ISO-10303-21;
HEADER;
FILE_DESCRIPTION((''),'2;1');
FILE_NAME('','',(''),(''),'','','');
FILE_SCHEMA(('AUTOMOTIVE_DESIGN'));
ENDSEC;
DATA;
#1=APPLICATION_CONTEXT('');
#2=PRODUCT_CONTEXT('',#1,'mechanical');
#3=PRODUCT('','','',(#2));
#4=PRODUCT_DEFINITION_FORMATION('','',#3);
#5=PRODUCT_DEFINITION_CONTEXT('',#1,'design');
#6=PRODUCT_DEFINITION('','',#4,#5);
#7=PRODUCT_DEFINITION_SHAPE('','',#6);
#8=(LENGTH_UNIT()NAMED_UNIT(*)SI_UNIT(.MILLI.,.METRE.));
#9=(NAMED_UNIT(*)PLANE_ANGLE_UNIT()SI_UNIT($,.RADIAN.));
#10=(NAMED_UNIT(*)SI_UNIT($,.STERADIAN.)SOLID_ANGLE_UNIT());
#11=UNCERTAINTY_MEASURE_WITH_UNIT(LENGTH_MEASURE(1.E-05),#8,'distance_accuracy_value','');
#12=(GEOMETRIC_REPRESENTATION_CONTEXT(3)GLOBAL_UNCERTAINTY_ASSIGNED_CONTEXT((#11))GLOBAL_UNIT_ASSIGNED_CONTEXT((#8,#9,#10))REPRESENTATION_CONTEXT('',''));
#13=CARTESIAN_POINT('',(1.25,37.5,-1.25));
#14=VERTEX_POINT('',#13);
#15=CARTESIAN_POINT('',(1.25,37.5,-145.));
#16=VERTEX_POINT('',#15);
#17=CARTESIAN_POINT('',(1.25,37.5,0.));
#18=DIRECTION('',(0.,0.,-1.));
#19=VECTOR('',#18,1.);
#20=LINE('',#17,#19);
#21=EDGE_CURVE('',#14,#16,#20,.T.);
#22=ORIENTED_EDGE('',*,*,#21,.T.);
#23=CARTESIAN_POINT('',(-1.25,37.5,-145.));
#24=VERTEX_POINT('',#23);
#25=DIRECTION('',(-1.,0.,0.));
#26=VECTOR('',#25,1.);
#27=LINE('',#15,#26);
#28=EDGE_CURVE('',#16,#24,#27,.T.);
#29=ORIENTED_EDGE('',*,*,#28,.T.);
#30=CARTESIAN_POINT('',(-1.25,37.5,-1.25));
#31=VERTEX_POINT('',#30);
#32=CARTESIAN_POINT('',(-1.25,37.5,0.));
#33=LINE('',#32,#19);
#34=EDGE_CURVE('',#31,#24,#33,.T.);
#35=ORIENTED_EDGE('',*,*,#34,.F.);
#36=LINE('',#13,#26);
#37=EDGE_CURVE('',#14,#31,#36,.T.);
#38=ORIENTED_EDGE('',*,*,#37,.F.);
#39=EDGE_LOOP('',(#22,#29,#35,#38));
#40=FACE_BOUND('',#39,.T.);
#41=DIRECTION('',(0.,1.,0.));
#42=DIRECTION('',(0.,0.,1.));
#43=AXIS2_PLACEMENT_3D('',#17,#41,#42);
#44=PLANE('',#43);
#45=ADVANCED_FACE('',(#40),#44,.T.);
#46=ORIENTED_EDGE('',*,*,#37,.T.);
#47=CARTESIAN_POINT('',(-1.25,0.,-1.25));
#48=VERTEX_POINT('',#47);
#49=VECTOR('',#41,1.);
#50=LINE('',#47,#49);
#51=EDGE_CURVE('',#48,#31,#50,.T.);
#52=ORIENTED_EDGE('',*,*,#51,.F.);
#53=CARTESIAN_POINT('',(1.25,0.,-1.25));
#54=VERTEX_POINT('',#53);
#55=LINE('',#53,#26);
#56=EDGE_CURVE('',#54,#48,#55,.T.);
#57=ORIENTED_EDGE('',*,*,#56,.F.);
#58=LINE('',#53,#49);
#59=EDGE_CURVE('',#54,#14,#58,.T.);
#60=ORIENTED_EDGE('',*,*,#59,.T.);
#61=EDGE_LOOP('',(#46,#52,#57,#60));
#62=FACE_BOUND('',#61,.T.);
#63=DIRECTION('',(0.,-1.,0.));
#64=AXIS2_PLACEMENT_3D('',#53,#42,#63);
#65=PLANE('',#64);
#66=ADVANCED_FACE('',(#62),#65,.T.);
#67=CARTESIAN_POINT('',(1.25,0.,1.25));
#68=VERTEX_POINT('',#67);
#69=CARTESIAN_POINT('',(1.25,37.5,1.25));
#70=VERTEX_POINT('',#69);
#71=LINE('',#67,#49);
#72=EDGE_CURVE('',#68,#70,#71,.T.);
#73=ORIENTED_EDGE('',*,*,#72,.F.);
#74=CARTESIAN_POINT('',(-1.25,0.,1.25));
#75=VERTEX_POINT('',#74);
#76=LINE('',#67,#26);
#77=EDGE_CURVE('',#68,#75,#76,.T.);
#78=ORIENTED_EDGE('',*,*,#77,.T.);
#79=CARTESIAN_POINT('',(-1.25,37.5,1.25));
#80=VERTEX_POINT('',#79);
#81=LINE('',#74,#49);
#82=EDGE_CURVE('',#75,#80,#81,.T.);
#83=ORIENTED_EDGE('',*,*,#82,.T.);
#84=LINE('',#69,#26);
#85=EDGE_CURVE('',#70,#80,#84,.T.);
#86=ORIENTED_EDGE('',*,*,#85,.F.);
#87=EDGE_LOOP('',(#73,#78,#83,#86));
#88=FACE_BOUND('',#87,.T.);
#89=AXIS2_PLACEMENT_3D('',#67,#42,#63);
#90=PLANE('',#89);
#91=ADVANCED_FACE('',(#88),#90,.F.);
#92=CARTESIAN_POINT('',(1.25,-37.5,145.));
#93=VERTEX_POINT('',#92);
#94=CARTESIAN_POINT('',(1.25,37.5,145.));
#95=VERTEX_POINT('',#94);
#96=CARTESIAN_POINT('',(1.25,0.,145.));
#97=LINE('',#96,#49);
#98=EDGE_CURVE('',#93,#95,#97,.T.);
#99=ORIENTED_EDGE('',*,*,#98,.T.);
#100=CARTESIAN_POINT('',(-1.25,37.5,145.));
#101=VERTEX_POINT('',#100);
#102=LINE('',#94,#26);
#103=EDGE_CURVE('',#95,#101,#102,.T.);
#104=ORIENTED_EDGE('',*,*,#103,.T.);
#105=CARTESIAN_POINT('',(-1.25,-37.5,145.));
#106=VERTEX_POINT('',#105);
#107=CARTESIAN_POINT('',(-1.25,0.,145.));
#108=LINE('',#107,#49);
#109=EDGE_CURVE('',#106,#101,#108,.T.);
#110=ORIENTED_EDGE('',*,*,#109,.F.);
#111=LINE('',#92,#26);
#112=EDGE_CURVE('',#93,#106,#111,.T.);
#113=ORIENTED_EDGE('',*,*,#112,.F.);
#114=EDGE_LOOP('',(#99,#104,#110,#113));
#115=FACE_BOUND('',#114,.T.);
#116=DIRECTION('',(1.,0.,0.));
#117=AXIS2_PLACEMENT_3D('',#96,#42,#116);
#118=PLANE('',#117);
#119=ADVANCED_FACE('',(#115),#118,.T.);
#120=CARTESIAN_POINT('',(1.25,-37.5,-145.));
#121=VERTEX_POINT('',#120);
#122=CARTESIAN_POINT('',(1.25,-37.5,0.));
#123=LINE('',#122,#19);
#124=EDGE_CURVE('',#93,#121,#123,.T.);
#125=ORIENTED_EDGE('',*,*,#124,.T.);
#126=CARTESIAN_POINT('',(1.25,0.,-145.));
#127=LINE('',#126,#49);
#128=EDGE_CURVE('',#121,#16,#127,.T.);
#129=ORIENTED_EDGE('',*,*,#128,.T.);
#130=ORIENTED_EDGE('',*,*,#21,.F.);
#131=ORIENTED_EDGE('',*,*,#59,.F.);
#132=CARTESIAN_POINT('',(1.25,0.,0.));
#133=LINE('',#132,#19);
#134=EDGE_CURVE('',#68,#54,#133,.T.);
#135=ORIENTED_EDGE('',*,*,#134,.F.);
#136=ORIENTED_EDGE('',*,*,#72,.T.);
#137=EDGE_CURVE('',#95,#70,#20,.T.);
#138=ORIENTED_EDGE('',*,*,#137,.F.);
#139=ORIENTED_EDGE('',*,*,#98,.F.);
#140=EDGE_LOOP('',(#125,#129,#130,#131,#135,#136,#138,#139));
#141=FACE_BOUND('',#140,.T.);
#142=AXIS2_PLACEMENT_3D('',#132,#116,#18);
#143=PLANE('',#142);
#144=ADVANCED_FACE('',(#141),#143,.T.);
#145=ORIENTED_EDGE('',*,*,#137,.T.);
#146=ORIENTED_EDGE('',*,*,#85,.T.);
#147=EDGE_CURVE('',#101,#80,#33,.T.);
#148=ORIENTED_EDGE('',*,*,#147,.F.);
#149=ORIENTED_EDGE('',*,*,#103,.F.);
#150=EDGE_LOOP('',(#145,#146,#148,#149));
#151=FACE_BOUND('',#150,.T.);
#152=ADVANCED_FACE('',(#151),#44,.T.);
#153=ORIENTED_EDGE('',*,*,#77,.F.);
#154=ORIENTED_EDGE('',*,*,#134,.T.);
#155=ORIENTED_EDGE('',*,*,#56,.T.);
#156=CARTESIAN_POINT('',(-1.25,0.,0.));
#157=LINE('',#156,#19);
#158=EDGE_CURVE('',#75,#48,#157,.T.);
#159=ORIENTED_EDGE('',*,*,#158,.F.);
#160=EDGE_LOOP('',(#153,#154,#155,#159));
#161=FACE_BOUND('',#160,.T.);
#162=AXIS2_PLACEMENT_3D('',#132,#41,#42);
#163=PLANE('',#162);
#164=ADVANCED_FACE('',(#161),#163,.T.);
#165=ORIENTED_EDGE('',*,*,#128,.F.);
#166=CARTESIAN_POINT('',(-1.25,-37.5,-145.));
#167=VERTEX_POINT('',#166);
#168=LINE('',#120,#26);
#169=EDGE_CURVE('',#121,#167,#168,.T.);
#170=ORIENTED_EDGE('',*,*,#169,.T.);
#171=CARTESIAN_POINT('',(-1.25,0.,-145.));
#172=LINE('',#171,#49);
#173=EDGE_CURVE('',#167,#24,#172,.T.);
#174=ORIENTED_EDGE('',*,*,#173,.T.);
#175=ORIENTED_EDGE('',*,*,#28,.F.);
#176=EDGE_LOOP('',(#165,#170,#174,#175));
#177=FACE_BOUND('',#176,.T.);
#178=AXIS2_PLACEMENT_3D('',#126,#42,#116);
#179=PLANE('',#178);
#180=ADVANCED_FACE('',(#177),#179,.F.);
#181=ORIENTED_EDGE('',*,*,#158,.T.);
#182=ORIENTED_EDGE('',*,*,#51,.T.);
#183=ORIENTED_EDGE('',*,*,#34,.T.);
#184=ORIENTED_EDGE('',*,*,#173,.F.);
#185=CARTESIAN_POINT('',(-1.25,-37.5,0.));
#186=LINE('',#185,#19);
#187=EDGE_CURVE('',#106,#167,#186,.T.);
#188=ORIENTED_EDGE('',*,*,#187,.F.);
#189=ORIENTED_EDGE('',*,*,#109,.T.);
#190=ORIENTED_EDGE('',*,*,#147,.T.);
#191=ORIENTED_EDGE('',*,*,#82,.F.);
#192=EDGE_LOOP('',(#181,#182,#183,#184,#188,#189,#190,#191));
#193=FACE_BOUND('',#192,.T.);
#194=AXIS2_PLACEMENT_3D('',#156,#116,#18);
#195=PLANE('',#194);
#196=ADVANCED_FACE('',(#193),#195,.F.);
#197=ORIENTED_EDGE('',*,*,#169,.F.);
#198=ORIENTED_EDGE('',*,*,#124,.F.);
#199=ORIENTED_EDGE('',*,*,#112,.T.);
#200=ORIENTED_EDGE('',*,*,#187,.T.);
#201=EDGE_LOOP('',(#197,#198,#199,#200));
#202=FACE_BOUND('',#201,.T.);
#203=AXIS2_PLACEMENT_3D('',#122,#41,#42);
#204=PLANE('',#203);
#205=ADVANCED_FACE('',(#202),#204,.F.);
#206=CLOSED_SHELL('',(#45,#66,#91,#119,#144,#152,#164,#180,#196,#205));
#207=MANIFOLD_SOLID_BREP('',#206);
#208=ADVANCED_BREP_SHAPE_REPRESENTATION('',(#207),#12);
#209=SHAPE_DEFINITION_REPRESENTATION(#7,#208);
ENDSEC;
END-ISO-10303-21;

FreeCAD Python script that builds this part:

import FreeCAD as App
import Part
import Sketcher
from FreeCAD import Vector
Q = App.Units.Quantity

doc = App.newDocument("Part")
body = doc.addObject("PartDesign::Body", "Body")

sketch1 = body.newObject("Sketcher::SketchObject", "Sketch")
sketch1.AttachmentSupport = (doc.getObject("YZ_Plane"), [""])
sketch1.MapMode = "FlatFace"
sketch1.addGeometry([
    Part.LineSegment(Vector(-37.5, 145, 0), Vector(-37.5, -145, 0)),
    Part.LineSegment(Vector(-37.5, -145, 0), Vector(37.5, -145, 0)),
    Part.LineSegment(Vector(37.5, -145, 0), Vector(37.5, -1.2, 0)),
    Part.LineSegment(Vector(37.5, -1.2, 0), Vector(0, -1.2, 0)),
    Part.LineSegment(Vector(0, -1.2, 0), Vector(0, 1.2, 0)),
    Part.LineSegment(Vector(0, 1.2, 0), Vector(37.5, 1.2, 0)),
    Part.LineSegment(Vector(37.5, 1.2, 0), Vector(37.5, 145, 0)),
    Part.LineSegment(Vector(37.5, 145, 0), Vector(-37.5, 145, 0)),
], False)
sketch1.addConstraint([
    Sketcher.Constraint("Coincident", 0, 2, 1, 1),
    Sketcher.Constraint("Coincident", 1, 2, 2, 1),
    Sketcher.Constraint("Coincident", 2, 2, 3, 1),
    Sketcher.Constraint("Coincident", 3, 2, 4, 1),
    Sketcher.Constraint("Coincident", 4, 2, 5, 1),
    Sketcher.Constraint("Coincident", 5, 2, 6, 1),
    Sketcher.Constraint("Coincident", 6, 2, 7, 1),
    Sketcher.Constraint("Coincident", 7, 2, 0, 1),
    Sketcher.Constraint("Vertical", 0),
    Sketcher.Constraint("Horizontal", 1),
    Sketcher.Constraint("Vertical", 2),
    Sketcher.Constraint("Horizontal", 3),
    Sketcher.Constraint("Vertical", 4),
    Sketcher.Constraint("Horizontal", 5),
    Sketcher.Constraint("Vertical", 6),
    Sketcher.Constraint("Horizontal", 7),
    Sketcher.Constraint("Symmetric", 3, 2, 4, 2, -1, 1),
    Sketcher.Constraint("Symmetric", 0, 2, 6, 2, -1, 1),
    Sketcher.Constraint("Vertical", 2, 2, 5, 2),
    Sketcher.Constraint("DistanceX", 1, 1, 1, 2, Q("75 mm")),
    Sketcher.Constraint("DistanceY", 0, 2, 0, 1, Q("290 mm")),
    Sketcher.Constraint("DistanceY", 4, 1, 4, 2, Q("2.5 mm")),
])
pad1 = body.newObject("PartDesign::Pad", "Pad")
pad1.Profile = sketch1
pad1.Length = 2.5
pad1.Midplane = True

doc.recompute()
